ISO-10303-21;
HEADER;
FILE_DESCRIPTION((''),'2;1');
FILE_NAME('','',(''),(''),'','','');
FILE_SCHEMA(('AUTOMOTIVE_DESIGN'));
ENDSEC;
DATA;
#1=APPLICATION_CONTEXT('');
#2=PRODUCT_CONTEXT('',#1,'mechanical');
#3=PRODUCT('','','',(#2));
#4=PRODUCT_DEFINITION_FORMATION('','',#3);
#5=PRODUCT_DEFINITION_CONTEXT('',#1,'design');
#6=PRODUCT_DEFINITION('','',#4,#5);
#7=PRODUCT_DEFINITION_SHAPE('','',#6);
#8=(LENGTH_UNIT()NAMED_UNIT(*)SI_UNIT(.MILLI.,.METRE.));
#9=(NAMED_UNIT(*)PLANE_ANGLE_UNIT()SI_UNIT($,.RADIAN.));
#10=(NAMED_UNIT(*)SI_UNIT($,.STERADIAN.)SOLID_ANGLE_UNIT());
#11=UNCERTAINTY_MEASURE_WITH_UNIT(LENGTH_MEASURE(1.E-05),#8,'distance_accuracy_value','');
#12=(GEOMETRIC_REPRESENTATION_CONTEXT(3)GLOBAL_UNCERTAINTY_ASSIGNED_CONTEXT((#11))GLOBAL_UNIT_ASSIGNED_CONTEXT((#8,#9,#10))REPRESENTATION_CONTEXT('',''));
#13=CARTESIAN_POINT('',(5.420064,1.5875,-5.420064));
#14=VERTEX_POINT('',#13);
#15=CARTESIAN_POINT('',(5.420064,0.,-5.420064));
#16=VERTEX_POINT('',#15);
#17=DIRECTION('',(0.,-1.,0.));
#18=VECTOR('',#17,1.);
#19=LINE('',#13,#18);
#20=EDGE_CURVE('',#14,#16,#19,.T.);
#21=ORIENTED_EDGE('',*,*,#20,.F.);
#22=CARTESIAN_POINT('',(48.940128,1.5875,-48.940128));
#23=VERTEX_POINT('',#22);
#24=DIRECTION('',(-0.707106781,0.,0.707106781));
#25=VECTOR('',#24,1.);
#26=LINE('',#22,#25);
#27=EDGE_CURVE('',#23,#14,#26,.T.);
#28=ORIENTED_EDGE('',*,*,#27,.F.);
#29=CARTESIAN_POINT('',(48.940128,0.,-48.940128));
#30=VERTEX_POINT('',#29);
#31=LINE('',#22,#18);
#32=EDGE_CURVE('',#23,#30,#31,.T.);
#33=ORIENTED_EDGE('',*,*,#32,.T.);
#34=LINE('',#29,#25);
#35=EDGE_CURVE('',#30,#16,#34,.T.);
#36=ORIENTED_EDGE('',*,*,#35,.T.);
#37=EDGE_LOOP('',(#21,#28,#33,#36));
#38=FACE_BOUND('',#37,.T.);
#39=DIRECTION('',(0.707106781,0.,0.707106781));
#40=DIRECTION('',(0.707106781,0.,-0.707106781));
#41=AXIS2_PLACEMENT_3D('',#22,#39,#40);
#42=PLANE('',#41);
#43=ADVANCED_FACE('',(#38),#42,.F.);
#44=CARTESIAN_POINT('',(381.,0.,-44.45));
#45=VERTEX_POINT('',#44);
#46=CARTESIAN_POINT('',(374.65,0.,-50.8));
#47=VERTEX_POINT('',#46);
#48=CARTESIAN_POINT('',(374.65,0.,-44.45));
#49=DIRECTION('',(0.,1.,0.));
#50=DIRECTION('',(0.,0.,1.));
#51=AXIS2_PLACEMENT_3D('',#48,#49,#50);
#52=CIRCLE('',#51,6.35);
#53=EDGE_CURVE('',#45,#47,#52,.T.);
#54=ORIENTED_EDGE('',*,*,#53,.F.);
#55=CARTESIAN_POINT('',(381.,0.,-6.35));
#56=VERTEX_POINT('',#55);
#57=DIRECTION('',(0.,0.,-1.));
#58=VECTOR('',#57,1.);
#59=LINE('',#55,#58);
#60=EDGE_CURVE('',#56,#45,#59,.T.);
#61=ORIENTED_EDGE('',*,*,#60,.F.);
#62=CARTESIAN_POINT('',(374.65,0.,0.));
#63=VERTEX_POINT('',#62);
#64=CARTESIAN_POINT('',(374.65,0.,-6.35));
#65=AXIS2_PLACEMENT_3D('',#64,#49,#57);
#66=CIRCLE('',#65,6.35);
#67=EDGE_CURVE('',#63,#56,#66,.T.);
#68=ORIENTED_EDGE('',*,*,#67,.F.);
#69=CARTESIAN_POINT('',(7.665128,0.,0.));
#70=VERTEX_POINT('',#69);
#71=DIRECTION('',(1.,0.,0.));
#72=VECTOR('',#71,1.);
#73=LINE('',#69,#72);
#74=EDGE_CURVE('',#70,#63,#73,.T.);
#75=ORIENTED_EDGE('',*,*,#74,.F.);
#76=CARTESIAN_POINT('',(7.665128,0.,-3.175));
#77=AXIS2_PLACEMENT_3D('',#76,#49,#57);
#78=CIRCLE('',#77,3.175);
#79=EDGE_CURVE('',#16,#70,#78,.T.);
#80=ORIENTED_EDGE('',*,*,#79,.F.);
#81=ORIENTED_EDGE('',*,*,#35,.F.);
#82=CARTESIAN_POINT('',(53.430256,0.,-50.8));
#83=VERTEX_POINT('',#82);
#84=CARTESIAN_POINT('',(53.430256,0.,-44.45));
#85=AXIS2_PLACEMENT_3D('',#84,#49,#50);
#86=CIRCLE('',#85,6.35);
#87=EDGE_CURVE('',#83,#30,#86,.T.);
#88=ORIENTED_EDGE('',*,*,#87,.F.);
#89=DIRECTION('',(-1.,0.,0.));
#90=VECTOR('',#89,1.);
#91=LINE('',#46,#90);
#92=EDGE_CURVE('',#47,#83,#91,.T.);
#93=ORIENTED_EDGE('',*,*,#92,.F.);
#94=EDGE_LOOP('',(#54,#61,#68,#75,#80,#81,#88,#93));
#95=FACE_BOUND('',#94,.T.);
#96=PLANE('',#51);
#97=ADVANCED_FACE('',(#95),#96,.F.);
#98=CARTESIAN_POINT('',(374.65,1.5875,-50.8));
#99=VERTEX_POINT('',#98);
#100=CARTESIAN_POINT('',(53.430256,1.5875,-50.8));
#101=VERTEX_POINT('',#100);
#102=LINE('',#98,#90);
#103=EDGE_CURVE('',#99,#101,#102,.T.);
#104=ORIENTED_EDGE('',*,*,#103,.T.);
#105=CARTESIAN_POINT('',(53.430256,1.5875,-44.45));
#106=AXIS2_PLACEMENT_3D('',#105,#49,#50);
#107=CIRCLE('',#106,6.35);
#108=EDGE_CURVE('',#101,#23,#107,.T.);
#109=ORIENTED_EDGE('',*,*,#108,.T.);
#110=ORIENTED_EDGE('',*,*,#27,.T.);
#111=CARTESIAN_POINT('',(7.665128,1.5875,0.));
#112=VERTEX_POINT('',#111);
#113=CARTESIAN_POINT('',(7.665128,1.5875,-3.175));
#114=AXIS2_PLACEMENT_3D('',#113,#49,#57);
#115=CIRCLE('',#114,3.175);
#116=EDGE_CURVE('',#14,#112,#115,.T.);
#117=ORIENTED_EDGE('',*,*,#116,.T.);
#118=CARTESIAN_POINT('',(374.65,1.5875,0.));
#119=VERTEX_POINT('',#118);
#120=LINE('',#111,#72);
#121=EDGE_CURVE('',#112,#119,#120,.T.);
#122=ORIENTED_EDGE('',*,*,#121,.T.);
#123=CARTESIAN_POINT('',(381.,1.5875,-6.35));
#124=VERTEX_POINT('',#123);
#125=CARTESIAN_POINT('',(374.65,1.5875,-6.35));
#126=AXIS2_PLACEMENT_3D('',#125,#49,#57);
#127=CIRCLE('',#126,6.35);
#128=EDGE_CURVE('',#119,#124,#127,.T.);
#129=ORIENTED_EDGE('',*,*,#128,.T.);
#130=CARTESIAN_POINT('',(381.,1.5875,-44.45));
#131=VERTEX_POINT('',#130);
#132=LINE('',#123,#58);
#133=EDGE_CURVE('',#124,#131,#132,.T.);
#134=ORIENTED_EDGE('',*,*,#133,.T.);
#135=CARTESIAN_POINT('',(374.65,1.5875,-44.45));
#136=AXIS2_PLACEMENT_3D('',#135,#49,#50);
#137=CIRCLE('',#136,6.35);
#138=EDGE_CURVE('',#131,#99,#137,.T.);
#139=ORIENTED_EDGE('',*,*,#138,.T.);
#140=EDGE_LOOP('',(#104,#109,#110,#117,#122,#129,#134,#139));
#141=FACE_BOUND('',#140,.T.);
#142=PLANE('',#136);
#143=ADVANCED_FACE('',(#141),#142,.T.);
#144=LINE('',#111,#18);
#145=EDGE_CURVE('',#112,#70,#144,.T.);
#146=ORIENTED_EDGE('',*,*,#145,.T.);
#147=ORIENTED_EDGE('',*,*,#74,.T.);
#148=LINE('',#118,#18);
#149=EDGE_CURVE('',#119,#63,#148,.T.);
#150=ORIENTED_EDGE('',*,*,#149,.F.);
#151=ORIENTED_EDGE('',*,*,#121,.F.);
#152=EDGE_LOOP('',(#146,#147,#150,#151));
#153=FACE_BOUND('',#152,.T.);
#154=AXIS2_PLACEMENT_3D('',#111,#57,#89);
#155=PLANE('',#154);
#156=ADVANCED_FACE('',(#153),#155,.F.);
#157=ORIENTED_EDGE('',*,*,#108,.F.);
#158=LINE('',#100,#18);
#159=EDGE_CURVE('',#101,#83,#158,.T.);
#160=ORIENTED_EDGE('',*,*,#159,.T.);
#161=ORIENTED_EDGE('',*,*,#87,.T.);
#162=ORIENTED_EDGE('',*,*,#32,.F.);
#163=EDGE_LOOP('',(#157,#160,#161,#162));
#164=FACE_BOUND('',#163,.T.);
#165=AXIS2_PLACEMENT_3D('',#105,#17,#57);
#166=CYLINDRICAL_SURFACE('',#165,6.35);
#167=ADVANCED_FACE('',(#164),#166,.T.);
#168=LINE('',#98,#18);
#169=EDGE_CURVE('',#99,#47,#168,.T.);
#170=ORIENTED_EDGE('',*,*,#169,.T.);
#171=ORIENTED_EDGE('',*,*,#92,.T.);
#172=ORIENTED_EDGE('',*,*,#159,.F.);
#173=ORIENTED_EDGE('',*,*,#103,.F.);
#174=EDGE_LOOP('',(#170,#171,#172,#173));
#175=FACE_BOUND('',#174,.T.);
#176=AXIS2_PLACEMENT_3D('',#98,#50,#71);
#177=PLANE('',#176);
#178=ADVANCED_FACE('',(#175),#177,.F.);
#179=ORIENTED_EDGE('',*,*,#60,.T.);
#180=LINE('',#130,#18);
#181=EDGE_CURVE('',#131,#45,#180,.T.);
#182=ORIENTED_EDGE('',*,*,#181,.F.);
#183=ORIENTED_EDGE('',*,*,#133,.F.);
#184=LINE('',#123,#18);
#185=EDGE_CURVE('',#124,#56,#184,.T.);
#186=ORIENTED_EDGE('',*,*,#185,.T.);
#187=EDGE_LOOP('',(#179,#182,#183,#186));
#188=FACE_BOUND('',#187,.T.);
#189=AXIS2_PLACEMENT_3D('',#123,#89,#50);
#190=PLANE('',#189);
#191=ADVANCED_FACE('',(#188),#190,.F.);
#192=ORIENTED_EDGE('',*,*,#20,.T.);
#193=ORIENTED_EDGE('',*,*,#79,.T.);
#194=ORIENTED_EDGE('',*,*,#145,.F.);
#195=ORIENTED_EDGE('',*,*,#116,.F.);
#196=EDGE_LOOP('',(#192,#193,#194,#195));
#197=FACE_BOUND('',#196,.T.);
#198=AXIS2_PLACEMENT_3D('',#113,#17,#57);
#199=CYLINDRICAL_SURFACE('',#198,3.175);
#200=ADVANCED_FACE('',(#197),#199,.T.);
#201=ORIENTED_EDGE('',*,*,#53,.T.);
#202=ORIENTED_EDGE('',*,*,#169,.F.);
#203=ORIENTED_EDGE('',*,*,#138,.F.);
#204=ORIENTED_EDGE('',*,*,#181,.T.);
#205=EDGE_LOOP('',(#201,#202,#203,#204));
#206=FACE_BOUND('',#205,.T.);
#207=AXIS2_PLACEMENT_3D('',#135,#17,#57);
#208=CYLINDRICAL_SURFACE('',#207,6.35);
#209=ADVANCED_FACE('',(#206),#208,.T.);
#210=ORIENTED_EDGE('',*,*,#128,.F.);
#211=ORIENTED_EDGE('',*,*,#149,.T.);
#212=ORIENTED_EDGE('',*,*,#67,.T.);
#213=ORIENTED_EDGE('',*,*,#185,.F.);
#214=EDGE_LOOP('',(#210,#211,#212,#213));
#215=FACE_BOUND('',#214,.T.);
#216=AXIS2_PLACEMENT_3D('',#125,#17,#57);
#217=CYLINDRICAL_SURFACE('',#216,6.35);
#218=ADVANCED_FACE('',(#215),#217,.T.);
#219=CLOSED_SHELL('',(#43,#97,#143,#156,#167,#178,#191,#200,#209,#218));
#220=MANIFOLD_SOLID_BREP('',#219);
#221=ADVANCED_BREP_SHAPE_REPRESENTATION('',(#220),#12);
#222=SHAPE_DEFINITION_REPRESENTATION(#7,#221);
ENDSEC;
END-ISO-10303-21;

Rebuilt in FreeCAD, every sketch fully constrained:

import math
import FreeCAD as App
import Part
import Sketcher
from FreeCAD import Vector
Q = App.Units.Quantity

doc = App.newDocument("Part")
params = doc.addObject("Spreadsheet::Sheet", "Params")
for row, (alias, value) in enumerate([
    ("sketch1_radius", "0.25 in"),
    ("sketch1_height", "1.5 in"),
    ("sketch1_radius2", "0.125 in"),
    ("pad1_length", "0.0625 in"),
], start=1):
    params.set(f"A{row}", alias)
    params.set(f"B{row}", "=" + value)
    params.setAlias(f"B{row}", alias)

body = doc.addObject("PartDesign::Body", "Body")

sketch1 = doc.addObject("Sketcher::SketchObject", "Sketch")
body.addObject(sketch1)
sketch1.AttachmentSupport = (doc.XZ_Plane, [""])
sketch1.MapMode = "FlatFace"
sketch1.addGeometry(Part.LineSegment(Vector(7.7, 0, 0), Vector(374.6, 0, 0)), False)
sketch1.addGeometry(Part.ArcOfCircle(Part.Circle(Vector(374.7, -6.3, 0), Vector(0, 0, 1), 6.3), math.radians(0), math.radians(90)), False)
sketch1.addGeometry(Part.LineSegment(Vector(381, -6.3, 0), Vector(381, -44.5, 0)), False)
sketch1.addGeometry(Part.ArcOfCircle(Part.Circle(Vector(374.7, -44.5, 0), Vector(0, 0, 1), 6.3), math.radians(-90), math.radians(0)), False)
sketch1.addGeometry(Part.LineSegment(Vector(374.6, -50.8, 0), Vector(53.4, -50.8, 0)), False)
sketch1.addGeometry(Part.ArcOfCircle(Part.Circle(Vector(53.4, -44.4, 0), Vector(0, 0, 1), 6.4), math.radians(-135), math.radians(-90)), False)
sketch1.addGeometry(Part.LineSegment(Vector(48.9, -48.9, 0), Vector(5.4, -5.4, 0)), False)
sketch1.addGeometry(Part.ArcOfCircle(Part.Circle(Vector(7.7, -3.2, 0), Vector(0, 0, 1), 3.2), math.radians(90), math.radians(225)), False)
sketch1.addConstraint(Sketcher.Constraint("Tangent", 0, 2, 1, 2))
sketch1.addConstraint(Sketcher.Constraint("Tangent", 1, 1, 2, 1))
sketch1.addConstraint(Sketcher.Constraint("Tangent", 2, 2, 3, 2))
sketch1.addConstraint(Sketcher.Constraint("Tangent", 3, 1, 4, 1))
sketch1.addConstraint(Sketcher.Constraint("Tangent", 4, 2, 5, 2))
sketch1.addConstraint(Sketcher.Constraint("Tangent", 5, 1, 6, 1))
sketch1.addConstraint(Sketcher.Constraint("Tangent", 6, 2, 7, 2))
sketch1.addConstraint(Sketcher.Constraint("Tangent", 7, 1, 0, 1))
sketch1.addConstraint(Sketcher.Constraint("Horizontal", 0))
sketch1.addConstraint(Sketcher.Constraint("Vertical", 2))
sketch1.addConstraint(Sketcher.Constraint("Horizontal", 4))
sketch1.addConstraint(Sketcher.Constraint("Equal", 1, 3))
sketch1.addConstraint(Sketcher.Constraint("Equal", 3, 5))
sketch1.addConstraint(Sketcher.Constraint("PointOnObject", 0, 2, -1))
sketch1.addConstraint(Sketcher.Constraint("Radius", 1, Q("0.25 in")))
sketch1.addConstraint(Sketcher.Constraint("DistanceY", 2, 2, 2, 1, Q("1.5 in")))
sketch1.addConstraint(Sketcher.Constraint("DistanceX", -1, 1, 1, 1, Q("15 in")))
sketch1.addConstraint(Sketcher.Constraint("Angle", 6, Q("135 deg")))
sketch1.addConstraint(Sketcher.Constraint("Radius", 7, Q("0.125 in")))
sketch1.addConstraint(Sketcher.Constraint("DistanceX", 0, 1, 0, 2, 366.984872))
sketch1.setExpression("Constraints[14]", "Params.sketch1_radius")
sketch1.setExpression("Constraints[15]", "Params.sketch1_height")
sketch1.setExpression("Constraints[18]", "Params.sketch1_radius2")
pad1 = doc.addObject("PartDesign::Pad", "Pad")
body.addObject(pad1)
pad1.Profile = sketch1
pad1.setExpression("Length", "Params.pad1_length")
pad1.Reversed = True

doc.recompute()
